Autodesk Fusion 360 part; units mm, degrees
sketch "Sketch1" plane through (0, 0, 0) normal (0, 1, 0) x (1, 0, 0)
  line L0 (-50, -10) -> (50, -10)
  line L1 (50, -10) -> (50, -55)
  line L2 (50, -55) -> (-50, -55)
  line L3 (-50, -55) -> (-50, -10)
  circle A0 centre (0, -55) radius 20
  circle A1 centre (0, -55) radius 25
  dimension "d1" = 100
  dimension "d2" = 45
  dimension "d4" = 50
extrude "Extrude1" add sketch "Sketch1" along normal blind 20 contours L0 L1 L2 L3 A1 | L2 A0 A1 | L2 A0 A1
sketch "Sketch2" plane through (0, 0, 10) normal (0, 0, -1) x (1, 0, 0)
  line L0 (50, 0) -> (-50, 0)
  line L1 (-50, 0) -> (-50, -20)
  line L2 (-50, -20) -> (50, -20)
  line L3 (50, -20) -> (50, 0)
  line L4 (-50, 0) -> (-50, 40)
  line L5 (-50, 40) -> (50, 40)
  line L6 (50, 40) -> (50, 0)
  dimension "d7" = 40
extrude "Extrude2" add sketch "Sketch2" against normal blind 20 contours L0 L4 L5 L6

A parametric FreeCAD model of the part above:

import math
import FreeCAD as App
import Part
import Sketcher

V = App.Vector


def add_polygon(sketch, points):
    """Adds a closed chain of lines whose ends are joined by coincident constraints."""
    first, n = sketch.GeometryCount, len(points)
    for a, b in zip(points, points[1:] + points[:1]):
        sketch.addGeometry(Part.LineSegment(App.Vector(*a, 0), App.Vector(*b, 0)), False)
    for i in range(n):
        sketch.addConstraint(Sketcher.Constraint("Coincident", first + i, 2, first + (i + 1) % n, 1))

doc = App.newDocument("Part")
body = doc.addObject("PartDesign::Body", "Body")

# Sketch on XZ plane
sketch1 = doc.addObject("Sketcher::SketchObject", "Sketch")
body.addObject(sketch1)
sketch1.AttachmentSupport = (doc.XZ_Plane, [""])
sketch1.MapMode = "FlatFace"
sketch1.addGeometry([
    Part.LineSegment(V(50, 10, 0), V(-50, 10, 0)),  # 0
    Part.LineSegment(V(-50, 10, 0), V(-50, 55, 0)),  # 1
    Part.LineSegment(V(-50, 55, 0), V(-25, 55, 0)),  # 2
    Part.ArcOfCircle(Part.Circle(V(0, 55, 0), V(0, 0, 1), 25), math.radians(0), math.radians(180)),  # 3
    Part.LineSegment(V(25, 55, 0), V(50, 55, 0)),  # 4
    Part.LineSegment(V(50, 55, 0), V(50, 10, 0)),  # 5
    Part.Circle(V(0, 55, 0), V(0, 0, 1), 20),  # 6
], False)
sketch1.addConstraint([
    Sketcher.Constraint("Coincident", 0, 2, 1, 1),
    Sketcher.Constraint("Coincident", 1, 2, 2, 1),
    Sketcher.Constraint("Coincident", 2, 2, 3, 2),
    Sketcher.Constraint("Coincident", 3, 1, 4, 1),
    Sketcher.Constraint("Coincident", 4, 2, 5, 1),
    Sketcher.Constraint("Coincident", 5, 2, 0, 1),
    Sketcher.Constraint("Horizontal", 0),
    Sketcher.Constraint("Vertical", 1),
    Sketcher.Constraint("Horizontal", 2),
    Sketcher.Constraint("Horizontal", 4),
    Sketcher.Constraint("Vertical", 5),
    Sketcher.Constraint("Coincident", 6, 3, 3, 3),
    Sketcher.Constraint("Symmetric", 2, 2, 3, 1, -2),
    Sketcher.Constraint("Horizontal", 6, 3, 1, 2),
    Sketcher.Constraint("Equal", 2, 4),
    Sketcher.Constraint("Radius", 3, 25.0),
    Sketcher.Constraint("DistanceX", 0, 2, 0, 1, 100.0),
    Sketcher.Constraint("DistanceY", 1, 1, 1, 2, 45.0),
    Sketcher.Constraint("Diameter", 6, 40.0),
    Sketcher.Constraint("DistanceY", -1, 1, 3, 3, 55.0),
])
pad1 = doc.addObject("PartDesign::Pad", "Pad")
body.addObject(pad1)
pad1.Profile = sketch1
pad1.Length = 20
pad1.Reversed = True

# Sketch on XY plane
sketch2 = doc.addObject("Sketcher::SketchObject", "Sketch001")
body.addObject(sketch2)
sketch2.AttachmentSupport = (doc.XY_Plane, [""])
sketch2.MapMode = "FlatFace"
sketch2.AttachmentOffset = App.Placement(V(0, 0, 10), App.Rotation())
add_polygon(sketch2, [(-50, 0), (50, 0), (50, -40), (-50, -40)])  # lines 0-3
sketch2.addConstraint([
    Sketcher.Constraint("Horizontal", 0),
    Sketcher.Constraint("Vertical", 1),
    Sketcher.Constraint("Horizontal", 2),
    Sketcher.Constraint("Vertical", 3),
    Sketcher.Constraint("Symmetric", 0, 2, 3, 2, -1, 1),
    Sketcher.Constraint("DistanceY", 1, 2, 1, 1, 40.0),
    Sketcher.Constraint("DistanceX", 0, 1, 0, 2, 100.0),
])
pad2 = doc.addObject("PartDesign::Pad", "Pad001")
body.addObject(pad2)
pad2.Profile = sketch2
pad2.Length = 20

doc.recompute()
